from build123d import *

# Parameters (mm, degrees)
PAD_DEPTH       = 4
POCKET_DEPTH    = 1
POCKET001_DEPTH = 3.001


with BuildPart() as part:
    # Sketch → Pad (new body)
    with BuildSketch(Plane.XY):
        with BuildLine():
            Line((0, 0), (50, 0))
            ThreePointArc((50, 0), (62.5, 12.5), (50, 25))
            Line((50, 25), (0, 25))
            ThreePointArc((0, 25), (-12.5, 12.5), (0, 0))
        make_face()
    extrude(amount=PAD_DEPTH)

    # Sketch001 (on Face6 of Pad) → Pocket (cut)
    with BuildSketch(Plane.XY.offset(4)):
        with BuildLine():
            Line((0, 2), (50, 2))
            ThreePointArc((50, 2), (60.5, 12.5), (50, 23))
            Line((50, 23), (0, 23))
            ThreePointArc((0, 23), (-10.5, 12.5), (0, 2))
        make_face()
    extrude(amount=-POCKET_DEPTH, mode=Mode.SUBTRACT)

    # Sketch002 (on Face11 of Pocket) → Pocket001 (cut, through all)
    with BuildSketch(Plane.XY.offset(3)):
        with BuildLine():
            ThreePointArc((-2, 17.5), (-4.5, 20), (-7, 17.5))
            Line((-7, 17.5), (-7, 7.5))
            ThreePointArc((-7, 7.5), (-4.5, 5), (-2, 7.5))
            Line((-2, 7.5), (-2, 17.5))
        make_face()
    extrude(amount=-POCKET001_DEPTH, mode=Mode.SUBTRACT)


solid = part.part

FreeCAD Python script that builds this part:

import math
import FreeCAD as App
import Part
import Sketcher

V = App.Vector

doc = App.newDocument("Part")
body = doc.addObject("PartDesign::Body", "Body")

sketch1 = body.newObject("Sketcher::SketchObject", "Sketch")
sketch1.AttachmentSupport = (doc.getObject("XY_Plane"), [""])
sketch1.MapMode = "FlatFace"
sketch1.addGeometry(Part.LineSegment(V(0, 0, 0), V(50, 0, 0)), False)
sketch1.addGeometry(Part.ArcOfCircle(Part.Circle(V(50, 12, 0), V(0, 0, 1), 12), math.radians(-90), math.radians(90)), False)
sketch1.addGeometry(Part.LineSegment(V(50, 25, 0), V(0, 25, 0)), False)
sketch1.addGeometry(Part.ArcOfCircle(Part.Circle(V(0, 12, 0), V(0, 0, 1), 12), math.radians(90), math.radians(270)), False)
sketch1.addConstraint(Sketcher.Constraint("Tangent", 0, 2, 1, 1))
sketch1.addConstraint(Sketcher.Constraint("Tangent", 1, 2, 2, 1))
sketch1.addConstraint(Sketcher.Constraint("Tangent", 2, 2, 3, 1))
sketch1.addConstraint(Sketcher.Constraint("Tangent", 3, 2, 0, 1))
sketch1.addConstraint(Sketcher.Constraint("Horizontal", 0))
sketch1.addConstraint(Sketcher.Constraint("Horizontal", 2))
sketch1.addConstraint(Sketcher.Constraint("Coincident", 3, 2, -1, 1))
sketch1.addConstraint(Sketcher.Constraint("Radius", 1, 12.5))
sketch1.addConstraint(Sketcher.Constraint("DistanceX", 0, 1, 0, 2, 50.0))
pad1 = body.newObject("PartDesign::Pad", "Pad")
pad1.Profile = sketch1
pad1.Length = 4

sketch2 = body.newObject("Sketcher::SketchObject", "Sketch001")
sketch2.AttachmentSupport = (doc.getObject("XY_Plane"), [""])
sketch2.MapMode = "FlatFace"
sketch2.AttachmentOffset = App.Placement(V(0, 0, 4), App.Rotation())
sketch2.addGeometry(Part.LineSegment(V(0, 2, 0), V(50, 2, 0)), False)
sketch2.addGeometry(Part.ArcOfCircle(Part.Circle(V(50, 12, 0), V(0, 0, 1), 10), math.radians(-90), math.radians(90)), False)
sketch2.addGeometry(Part.LineSegment(V(50, 23, 0), V(0, 23, 0)), False)
sketch2.addGeometry(Part.ArcOfCircle(Part.Circle(V(0, 12, 0), V(0, 0, 1), 10), math.radians(90), math.radians(270)), False)
sketch2.addConstraint(Sketcher.Constraint("Tangent", 0, 2, 1, 1))
sketch2.addConstraint(Sketcher.Constraint("Tangent", 1, 2, 2, 1))
sketch2.addConstraint(Sketcher.Constraint("Tangent", 2, 2, 3, 1))
sketch2.addConstraint(Sketcher.Constraint("Tangent", 3, 2, 0, 1))
sketch2.addConstraint(Sketcher.Constraint("Horizontal", 0))
sketch2.addConstraint(Sketcher.Constraint("Horizontal", 2))
sketch2.addConstraint(Sketcher.Constraint("PointOnObject", 3, 3, -2))
sketch2.addConstraint(Sketcher.Constraint("Radius", 1, 10.5))
sketch2.addConstraint(Sketcher.Constraint("DistanceX", 0, 1, 0, 2, 50.0))
sketch2.addConstraint(Sketcher.Constraint("DistanceY", -1, 1, 0, 2, 2.0))
pocket1 = body.newObject("PartDesign::Pocket", "Pocket")
pocket1.Profile = sketch2
pocket1.Length = 1

sketch3 = body.newObject("Sketcher::SketchObject", "Sketch002")
sketch3.AttachmentSupport = (doc.getObject("XY_Plane"), [""])
sketch3.MapMode = "FlatFace"
sketch3.AttachmentOffset = App.Placement(V(0, 0, 3), App.Rotation())
sketch3.addGeometry(Part.ArcOfCircle(Part.Circle(V(-4.5, 17.5, 0), V(0, 0, 1), 2.5), math.radians(0), math.radians(180)), False)
sketch3.addGeometry(Part.LineSegment(V(-7, 17.5, 0), V(-7, 7.5, 0)), False)
sketch3.addGeometry(Part.ArcOfCircle(Part.Circle(V(-4.5, 7.5, 0), V(0, 0, 1), 2.5), math.radians(180), math.radians(360)), False)
sketch3.addGeometry(Part.LineSegment(V(-2, 7.5, 0), V(-2, 17.5, 0)), False)
sketch3.addConstraint(Sketcher.Constraint("Tangent", 0, 2, 1, 1))
sketch3.addConstraint(Sketcher.Constraint("Tangent", 1, 2, 2, 1))
sketch3.addConstraint(Sketcher.Constraint("Tangent", 2, 2, 3, 1))
sketch3.addConstraint(Sketcher.Constraint("Tangent", 3, 2, 0, 1))
sketch3.addConstraint(Sketcher.Constraint("Vertical", 1))
sketch3.addConstraint(Sketcher.Constraint("Vertical", 3))
sketch3.addConstraint(Sketcher.Constraint("Radius", 0, 2.5))
sketch3.addConstraint(Sketcher.Constraint("DistanceY", 1, 2, 1, 1, 10.0))
sketch3.addConstraint(Sketcher.Constraint("DistanceX", 0, 2, -1, 1, 7.0))
sketch3.addConstraint(Sketcher.Constraint("DistanceY", -1, 1, 0, 3, 17.5))
pocket2 = body.newObject("PartDesign::Pocket", "Pocket001")
pocket2.Profile = sketch3
pocket2.Type = "ThroughAll"

doc.recompute()
